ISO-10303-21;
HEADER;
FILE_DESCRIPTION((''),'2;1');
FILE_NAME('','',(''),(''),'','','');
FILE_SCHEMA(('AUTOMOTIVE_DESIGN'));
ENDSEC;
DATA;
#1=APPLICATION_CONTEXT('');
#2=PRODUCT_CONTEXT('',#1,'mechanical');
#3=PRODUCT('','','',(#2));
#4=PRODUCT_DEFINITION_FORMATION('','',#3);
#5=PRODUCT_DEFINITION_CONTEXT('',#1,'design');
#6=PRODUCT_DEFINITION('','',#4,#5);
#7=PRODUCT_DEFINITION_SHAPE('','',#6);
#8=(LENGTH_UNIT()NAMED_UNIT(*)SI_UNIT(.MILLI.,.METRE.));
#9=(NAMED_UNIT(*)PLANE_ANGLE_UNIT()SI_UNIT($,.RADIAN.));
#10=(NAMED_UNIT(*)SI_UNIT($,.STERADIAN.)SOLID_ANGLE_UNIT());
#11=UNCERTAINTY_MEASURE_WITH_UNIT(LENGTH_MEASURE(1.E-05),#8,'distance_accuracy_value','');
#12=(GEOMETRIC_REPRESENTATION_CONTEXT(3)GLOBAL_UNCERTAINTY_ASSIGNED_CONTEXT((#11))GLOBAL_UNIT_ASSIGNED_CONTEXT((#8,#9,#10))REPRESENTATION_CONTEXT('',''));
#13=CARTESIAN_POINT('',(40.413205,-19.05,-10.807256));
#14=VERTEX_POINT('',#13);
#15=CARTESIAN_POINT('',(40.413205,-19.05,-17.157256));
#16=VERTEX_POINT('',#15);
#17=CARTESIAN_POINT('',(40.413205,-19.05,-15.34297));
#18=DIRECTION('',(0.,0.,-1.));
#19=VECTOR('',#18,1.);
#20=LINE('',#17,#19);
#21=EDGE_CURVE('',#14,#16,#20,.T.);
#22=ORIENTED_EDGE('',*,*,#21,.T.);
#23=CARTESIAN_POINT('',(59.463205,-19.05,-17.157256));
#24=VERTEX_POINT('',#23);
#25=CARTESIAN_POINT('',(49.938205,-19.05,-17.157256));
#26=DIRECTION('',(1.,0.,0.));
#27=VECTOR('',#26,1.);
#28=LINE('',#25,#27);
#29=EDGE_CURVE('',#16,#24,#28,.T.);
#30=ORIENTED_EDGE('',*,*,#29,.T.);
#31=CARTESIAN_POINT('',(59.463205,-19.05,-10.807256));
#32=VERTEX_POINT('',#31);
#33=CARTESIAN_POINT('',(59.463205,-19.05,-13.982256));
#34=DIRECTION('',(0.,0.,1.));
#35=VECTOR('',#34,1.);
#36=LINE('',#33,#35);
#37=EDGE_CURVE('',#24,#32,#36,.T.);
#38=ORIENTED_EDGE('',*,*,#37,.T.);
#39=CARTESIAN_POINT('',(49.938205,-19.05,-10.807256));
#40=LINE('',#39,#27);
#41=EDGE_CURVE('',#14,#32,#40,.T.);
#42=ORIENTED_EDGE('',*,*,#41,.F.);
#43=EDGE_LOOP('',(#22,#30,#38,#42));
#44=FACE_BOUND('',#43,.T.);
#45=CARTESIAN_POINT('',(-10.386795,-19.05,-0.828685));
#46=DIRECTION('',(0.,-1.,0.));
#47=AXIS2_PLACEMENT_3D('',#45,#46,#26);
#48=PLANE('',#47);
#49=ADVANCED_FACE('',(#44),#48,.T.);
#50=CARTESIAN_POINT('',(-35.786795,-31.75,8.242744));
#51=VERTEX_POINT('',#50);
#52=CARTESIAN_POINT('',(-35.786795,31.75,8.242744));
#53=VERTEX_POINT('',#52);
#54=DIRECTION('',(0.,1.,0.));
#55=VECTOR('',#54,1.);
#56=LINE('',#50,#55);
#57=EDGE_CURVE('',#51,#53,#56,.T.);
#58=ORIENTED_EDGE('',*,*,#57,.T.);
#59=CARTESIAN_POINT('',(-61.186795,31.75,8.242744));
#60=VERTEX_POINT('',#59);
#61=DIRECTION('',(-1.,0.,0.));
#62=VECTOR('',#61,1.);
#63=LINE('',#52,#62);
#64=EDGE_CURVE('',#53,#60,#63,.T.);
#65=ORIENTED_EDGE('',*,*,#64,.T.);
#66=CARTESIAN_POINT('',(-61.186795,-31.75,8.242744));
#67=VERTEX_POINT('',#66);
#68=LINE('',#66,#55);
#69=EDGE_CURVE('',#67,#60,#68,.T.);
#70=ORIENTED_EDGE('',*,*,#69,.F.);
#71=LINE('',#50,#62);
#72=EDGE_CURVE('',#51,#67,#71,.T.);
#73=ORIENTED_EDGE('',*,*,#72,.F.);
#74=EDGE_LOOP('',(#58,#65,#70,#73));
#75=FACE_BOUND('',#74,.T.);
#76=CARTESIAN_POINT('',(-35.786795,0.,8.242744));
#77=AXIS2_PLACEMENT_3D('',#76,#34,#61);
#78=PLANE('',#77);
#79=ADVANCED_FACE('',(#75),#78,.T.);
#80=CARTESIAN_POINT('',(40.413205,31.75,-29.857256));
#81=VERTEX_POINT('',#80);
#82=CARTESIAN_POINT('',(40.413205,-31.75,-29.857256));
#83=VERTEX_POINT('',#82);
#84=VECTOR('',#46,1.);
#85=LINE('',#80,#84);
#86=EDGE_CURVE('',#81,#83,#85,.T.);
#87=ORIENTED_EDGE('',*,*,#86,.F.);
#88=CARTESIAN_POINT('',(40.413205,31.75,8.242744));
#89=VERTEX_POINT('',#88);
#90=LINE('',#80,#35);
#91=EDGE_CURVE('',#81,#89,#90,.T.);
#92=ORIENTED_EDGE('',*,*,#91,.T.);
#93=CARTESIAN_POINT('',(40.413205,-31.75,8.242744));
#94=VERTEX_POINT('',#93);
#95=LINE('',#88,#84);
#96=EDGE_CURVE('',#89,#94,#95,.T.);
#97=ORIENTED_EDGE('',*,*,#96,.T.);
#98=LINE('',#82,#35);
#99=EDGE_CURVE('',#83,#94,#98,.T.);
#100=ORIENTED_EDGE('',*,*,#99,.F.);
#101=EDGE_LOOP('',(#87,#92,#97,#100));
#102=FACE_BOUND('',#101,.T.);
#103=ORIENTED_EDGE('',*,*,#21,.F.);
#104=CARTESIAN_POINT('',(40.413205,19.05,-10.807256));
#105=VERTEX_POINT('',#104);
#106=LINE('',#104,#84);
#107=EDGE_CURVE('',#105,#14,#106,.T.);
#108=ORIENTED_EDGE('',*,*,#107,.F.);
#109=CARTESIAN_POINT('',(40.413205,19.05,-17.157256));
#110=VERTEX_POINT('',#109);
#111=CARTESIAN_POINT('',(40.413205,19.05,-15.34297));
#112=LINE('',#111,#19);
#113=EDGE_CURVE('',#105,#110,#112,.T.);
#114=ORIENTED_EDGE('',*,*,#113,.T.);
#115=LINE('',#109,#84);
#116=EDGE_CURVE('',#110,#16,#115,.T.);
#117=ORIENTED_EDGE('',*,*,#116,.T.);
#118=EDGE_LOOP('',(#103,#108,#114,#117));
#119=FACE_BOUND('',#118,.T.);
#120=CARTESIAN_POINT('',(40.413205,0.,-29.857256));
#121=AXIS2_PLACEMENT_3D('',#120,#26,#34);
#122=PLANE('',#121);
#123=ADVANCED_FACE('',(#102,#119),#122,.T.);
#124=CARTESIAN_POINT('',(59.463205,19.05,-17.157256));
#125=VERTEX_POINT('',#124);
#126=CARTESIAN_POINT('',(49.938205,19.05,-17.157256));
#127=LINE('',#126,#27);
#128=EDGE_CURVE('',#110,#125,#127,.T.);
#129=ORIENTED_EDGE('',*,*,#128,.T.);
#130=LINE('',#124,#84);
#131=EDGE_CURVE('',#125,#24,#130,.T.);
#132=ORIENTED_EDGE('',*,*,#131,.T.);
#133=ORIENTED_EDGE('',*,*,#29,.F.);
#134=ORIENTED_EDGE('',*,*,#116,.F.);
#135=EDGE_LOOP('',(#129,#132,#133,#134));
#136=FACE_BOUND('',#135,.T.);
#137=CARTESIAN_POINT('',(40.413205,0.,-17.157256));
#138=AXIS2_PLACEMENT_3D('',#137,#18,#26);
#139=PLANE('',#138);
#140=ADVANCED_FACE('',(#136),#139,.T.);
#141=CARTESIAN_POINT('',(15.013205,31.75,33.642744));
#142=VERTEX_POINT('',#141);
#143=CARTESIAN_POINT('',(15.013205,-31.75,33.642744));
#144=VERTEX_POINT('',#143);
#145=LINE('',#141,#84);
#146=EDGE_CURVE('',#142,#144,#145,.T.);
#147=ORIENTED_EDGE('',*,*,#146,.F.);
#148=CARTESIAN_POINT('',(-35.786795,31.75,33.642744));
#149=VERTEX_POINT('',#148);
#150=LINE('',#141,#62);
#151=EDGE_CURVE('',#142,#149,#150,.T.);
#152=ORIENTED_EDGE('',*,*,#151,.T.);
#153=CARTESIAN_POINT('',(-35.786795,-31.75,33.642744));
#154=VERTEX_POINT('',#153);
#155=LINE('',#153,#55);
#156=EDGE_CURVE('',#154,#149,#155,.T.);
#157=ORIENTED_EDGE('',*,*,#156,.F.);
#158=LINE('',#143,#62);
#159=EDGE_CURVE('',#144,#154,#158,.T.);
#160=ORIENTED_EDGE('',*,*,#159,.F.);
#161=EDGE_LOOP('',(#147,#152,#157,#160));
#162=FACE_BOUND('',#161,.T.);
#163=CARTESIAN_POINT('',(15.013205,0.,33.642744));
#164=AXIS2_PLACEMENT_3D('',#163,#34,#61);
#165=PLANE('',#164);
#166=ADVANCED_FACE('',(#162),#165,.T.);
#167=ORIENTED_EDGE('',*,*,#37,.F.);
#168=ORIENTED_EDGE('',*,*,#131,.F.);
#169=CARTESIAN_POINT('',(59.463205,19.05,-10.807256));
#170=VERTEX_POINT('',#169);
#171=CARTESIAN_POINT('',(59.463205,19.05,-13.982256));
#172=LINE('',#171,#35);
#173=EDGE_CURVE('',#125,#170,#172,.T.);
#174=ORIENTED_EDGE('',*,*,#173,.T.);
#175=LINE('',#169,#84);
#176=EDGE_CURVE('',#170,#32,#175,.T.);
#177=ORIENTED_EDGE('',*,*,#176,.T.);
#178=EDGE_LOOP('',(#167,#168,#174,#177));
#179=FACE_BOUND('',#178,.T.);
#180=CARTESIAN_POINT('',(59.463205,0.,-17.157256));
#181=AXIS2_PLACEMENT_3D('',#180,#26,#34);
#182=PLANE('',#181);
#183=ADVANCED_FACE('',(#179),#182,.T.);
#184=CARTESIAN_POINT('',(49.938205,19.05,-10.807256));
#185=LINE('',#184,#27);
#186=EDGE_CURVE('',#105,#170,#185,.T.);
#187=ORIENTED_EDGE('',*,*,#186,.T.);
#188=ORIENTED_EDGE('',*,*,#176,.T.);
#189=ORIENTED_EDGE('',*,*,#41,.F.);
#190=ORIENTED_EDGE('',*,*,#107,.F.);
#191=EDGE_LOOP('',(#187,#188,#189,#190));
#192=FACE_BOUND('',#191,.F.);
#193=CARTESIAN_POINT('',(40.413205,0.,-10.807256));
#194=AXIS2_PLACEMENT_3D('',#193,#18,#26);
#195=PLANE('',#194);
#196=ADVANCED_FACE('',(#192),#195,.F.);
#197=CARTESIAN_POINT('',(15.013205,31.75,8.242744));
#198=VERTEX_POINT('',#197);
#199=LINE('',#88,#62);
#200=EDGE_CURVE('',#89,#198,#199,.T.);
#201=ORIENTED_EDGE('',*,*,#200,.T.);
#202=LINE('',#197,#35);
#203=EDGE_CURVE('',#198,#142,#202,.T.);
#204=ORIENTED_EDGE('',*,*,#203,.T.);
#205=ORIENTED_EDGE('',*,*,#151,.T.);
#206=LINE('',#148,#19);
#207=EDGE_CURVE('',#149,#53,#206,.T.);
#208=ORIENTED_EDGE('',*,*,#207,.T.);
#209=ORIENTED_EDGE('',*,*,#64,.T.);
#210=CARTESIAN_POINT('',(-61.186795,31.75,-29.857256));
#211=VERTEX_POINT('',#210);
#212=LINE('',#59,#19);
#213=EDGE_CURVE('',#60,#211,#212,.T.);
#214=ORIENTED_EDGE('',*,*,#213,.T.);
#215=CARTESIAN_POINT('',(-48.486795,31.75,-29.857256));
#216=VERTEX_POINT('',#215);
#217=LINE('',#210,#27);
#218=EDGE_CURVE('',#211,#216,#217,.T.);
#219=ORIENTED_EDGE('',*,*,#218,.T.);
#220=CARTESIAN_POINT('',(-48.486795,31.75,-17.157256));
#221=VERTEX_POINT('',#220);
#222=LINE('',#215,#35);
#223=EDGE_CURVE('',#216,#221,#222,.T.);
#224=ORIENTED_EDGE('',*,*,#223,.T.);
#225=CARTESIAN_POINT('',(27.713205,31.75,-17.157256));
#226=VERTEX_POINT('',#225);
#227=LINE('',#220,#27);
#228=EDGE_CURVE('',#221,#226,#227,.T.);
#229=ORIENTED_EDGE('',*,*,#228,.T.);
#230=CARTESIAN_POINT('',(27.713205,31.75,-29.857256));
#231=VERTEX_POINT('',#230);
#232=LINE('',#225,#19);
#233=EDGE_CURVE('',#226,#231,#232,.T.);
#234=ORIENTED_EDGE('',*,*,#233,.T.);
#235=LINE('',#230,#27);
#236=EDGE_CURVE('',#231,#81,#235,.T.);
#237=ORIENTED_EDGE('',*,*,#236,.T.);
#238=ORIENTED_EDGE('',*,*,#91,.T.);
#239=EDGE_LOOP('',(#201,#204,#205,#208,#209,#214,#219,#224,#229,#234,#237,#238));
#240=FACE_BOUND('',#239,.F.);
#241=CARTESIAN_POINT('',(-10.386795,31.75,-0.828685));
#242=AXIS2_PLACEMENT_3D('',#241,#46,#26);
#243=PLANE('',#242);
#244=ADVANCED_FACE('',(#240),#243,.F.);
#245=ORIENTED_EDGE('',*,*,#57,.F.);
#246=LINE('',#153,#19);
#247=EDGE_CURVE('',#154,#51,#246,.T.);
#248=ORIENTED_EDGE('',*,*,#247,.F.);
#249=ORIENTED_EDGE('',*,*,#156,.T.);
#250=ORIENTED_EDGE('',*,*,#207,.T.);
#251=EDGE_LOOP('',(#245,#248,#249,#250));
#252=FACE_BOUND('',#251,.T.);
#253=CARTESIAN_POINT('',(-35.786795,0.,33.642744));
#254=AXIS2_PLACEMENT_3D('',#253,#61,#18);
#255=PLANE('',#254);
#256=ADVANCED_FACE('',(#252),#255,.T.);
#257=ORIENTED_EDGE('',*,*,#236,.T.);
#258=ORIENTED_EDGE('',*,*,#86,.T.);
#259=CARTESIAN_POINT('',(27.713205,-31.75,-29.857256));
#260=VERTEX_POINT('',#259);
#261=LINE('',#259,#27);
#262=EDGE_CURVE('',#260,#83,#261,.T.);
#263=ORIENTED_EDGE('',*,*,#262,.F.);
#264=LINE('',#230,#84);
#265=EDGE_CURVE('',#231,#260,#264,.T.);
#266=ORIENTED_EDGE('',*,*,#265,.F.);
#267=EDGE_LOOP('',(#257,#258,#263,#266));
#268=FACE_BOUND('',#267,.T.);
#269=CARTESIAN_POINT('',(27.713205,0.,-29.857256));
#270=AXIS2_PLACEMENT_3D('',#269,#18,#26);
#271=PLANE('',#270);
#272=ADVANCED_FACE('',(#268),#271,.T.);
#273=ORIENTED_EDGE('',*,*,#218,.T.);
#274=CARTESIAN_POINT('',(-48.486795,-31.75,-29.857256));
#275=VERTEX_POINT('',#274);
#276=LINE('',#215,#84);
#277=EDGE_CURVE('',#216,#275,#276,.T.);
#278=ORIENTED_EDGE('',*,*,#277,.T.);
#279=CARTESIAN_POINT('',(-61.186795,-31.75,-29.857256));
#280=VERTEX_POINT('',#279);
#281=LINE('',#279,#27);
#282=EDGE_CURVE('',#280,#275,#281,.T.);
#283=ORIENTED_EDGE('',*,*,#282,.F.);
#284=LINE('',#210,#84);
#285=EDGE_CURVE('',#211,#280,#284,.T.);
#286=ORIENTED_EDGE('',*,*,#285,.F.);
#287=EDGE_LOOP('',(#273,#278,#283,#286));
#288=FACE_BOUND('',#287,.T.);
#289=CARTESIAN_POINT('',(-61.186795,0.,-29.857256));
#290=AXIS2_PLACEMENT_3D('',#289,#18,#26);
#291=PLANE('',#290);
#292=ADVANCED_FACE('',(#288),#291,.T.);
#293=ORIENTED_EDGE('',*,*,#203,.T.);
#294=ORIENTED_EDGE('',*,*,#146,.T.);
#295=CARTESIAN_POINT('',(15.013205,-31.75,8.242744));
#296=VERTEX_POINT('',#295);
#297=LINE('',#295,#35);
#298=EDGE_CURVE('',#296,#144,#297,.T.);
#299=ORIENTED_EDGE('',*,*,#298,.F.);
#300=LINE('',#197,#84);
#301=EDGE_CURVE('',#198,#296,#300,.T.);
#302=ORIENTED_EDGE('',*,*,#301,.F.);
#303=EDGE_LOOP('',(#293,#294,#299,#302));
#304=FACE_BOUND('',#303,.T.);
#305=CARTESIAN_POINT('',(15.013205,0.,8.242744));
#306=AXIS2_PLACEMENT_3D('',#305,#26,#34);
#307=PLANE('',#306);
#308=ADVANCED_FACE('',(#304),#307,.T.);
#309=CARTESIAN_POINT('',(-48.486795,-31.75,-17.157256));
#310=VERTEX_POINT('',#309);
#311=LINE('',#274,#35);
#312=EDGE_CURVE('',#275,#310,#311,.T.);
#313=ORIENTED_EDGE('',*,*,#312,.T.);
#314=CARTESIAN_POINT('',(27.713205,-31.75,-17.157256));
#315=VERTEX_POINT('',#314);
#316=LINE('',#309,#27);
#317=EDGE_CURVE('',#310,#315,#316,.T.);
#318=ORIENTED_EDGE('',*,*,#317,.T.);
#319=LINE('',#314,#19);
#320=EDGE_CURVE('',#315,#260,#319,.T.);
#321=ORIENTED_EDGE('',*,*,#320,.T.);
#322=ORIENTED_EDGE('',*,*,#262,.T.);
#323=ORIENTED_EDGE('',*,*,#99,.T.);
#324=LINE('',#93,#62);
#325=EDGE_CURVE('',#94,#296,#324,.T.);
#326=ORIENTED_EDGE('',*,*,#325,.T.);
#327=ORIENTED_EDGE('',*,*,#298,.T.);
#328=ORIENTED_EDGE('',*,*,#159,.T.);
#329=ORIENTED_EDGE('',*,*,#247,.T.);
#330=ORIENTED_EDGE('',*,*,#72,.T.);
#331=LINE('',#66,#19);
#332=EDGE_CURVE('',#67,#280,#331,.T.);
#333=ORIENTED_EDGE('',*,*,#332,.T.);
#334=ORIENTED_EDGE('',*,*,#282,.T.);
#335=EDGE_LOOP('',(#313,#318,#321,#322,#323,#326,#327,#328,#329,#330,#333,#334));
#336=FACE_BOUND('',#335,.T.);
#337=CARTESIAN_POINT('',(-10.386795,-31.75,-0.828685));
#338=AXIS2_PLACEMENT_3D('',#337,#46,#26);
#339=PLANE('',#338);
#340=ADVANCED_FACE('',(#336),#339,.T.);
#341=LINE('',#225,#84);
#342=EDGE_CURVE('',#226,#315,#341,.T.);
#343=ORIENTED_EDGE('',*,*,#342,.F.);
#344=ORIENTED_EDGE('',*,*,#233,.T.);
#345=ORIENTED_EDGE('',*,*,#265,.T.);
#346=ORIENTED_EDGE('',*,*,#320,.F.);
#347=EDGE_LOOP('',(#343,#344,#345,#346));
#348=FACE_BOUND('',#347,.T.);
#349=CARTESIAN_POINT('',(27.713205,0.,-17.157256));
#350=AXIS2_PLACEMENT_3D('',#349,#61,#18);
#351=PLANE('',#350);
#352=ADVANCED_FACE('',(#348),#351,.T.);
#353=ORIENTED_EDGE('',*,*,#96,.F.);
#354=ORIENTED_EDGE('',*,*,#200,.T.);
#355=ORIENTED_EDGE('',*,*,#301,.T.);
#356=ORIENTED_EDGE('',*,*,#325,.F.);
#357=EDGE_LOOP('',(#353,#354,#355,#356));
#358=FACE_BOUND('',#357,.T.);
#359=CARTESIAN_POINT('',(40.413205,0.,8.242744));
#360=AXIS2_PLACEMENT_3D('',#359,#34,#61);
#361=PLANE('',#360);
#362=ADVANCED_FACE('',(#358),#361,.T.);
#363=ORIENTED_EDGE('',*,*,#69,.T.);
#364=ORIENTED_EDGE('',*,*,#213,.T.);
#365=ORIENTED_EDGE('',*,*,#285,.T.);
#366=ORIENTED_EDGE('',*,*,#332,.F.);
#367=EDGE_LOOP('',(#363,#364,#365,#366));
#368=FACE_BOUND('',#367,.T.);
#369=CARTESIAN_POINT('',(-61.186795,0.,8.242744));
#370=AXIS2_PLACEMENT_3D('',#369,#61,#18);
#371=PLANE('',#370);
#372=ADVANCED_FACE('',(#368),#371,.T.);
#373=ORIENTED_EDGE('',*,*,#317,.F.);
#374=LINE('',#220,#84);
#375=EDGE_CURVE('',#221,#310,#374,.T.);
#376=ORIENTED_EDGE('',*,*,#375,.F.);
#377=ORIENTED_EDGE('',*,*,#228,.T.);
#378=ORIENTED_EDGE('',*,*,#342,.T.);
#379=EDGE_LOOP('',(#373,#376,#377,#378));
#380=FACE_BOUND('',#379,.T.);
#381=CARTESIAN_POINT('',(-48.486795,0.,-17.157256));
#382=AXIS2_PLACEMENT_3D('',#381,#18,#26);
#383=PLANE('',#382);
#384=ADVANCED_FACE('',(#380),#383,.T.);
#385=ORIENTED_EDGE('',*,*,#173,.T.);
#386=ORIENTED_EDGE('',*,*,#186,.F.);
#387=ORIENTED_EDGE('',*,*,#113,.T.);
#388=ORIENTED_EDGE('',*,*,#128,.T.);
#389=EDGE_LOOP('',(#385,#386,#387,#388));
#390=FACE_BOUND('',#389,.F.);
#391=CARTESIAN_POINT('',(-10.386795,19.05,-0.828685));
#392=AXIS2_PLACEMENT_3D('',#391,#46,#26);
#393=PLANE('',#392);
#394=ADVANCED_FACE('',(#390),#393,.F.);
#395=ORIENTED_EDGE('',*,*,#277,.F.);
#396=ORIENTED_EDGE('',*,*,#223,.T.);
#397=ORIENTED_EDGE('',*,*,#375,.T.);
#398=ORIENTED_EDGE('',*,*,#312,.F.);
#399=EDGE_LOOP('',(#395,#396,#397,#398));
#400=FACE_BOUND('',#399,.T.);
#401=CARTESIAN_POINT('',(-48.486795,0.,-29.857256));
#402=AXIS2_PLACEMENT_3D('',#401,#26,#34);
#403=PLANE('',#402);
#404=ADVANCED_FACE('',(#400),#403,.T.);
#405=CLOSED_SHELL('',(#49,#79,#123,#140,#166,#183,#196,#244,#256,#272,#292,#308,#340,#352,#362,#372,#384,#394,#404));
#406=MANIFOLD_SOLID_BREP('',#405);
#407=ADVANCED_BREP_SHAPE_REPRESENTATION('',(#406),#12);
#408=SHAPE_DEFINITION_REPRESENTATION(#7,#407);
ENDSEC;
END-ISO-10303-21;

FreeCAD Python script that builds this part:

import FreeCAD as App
import Part
import Sketcher
Q = App.Units.Quantity


def add_polygon(sketch, points):
    """Adds a closed chain of lines whose ends are joined by coincident constraints."""
    first, n = sketch.GeometryCount, len(points)
    for a, b in zip(points, points[1:] + points[:1]):
        sketch.addGeometry(Part.LineSegment(App.Vector(*a, 0), App.Vector(*b, 0)), False)
    for i in range(n):
        sketch.addConstraint(Sketcher.Constraint("Coincident", first + i, 2, first + (i + 1) % n, 1))

doc = App.newDocument("Part")
body = doc.addObject("PartDesign::Body", "Body")

sketch1 = body.newObject("Sketcher::SketchObject", "Sketch")
sketch1.AttachmentSupport = (doc.getObject("XZ_Plane"), [""])
sketch1.MapMode = "FlatFace"
add_polygon(sketch1, [(-61, 8), (-61, -30), (-48, -30), (-48, -17), (28, -17), (28, -30), (40, -30), (40, 8), (15, 8), (15, 34), (-36, 34), (-36, 8)])
sketch1.addConstraint([
    Sketcher.Constraint("Vertical", 0),
    Sketcher.Constraint("Horizontal", 1),
    Sketcher.Constraint("Vertical", 2),
    Sketcher.Constraint("Horizontal", 3),
    Sketcher.Constraint("Vertical", 4),
    Sketcher.Constraint("Horizontal", 5),
    Sketcher.Constraint("Vertical", 6),
    Sketcher.Constraint("Horizontal", 7),
    Sketcher.Constraint("Vertical", 8),
    Sketcher.Constraint("Horizontal", 9),
    Sketcher.Constraint("Vertical", 10),
    Sketcher.Constraint("Horizontal", 11),
    Sketcher.Constraint("Horizontal", 1, 2, 4, 2),
    Sketcher.Constraint("Horizontal", 7, 2, 10, 2),
    Sketcher.Constraint("Equal", 1, 5),
    Sketcher.Constraint("Equal", 7, 11),
    Sketcher.Constraint("Equal", 5, 2),
    Sketcher.Constraint("Equal", 11, 8),
    Sketcher.Constraint("DistanceX", 3, 1, 3, 2, Q("3 in")),
    Sketcher.Constraint("DistanceX", 7, 2, 7, 1, Q("1 in")),
    Sketcher.Constraint("DistanceX", 9, 2, 9, 1, Q("2 in")),
    Sketcher.Constraint("DistanceY", 0, 2, 0, 1, Q("1.5 in")),
    Sketcher.Constraint("DistanceX", 0, 2, -1, 1, Q("61.186795 mm")),
    Sketcher.Constraint("DistanceY", 0, 2, -1, 1, Q("29.857256 mm")),
])
pad1 = body.newObject("PartDesign::Pad", "Pad")
pad1.Profile = sketch1
pad1.Length = Q("2.5 in")
pad1.Midplane = True

sketch2 = body.newObject("Sketcher::SketchObject", "Sketch001")
sketch2.AttachmentSupport = (doc.getObject("XZ_Plane"), [""])
sketch2.MapMode = "FlatFace"
add_polygon(sketch2, [(-61, 8), (-61, -30), (-48, -30), (-48, -17), (28, -17), (28, -30), (40, -30), (40, -17), (59, -17), (59, -11), (40, -11), (40, 8), (15, 8), (15, 34), (-36, 34), (-36, 8)])
sketch2.addConstraint([
    Sketcher.Constraint("Vertical", 0),
    Sketcher.Constraint("Horizontal", 1),
    Sketcher.Constraint("Vertical", 2),
    Sketcher.Constraint("Horizontal", 3),
    Sketcher.Constraint("Vertical", 4),
    Sketcher.Constraint("Horizontal", 5),
    Sketcher.Constraint("Vertical", 6),
    Sketcher.Constraint("Horizontal", 7),
    Sketcher.Constraint("Vertical", 8),
    Sketcher.Constraint("Horizontal", 9),
    Sketcher.Constraint("Vertical", 10),
    Sketcher.Constraint("Horizontal", 11),
    Sketcher.Constraint("Vertical", 12),
    Sketcher.Constraint("Horizontal", 13),
    Sketcher.Constraint("Vertical", 14),
    Sketcher.Constraint("Horizontal", 15),
    Sketcher.Constraint("Horizontal", 1, 2, 4, 2),
    Sketcher.Constraint("Horizontal", 3, 2, 6, 2),
    Sketcher.Constraint("Horizontal", 11, 2, 14, 2),
    Sketcher.Constraint("Vertical", 6, 2, 9, 2),
    Sketcher.Constraint("Equal", 1, 5),
    Sketcher.Constraint("Equal", 11, 15),
    Sketcher.Constraint("Equal", 5, 2),
    Sketcher.Constraint("Equal", 9, 10),
    Sketcher.Constraint("Equal", 15, 12),
    Sketcher.Constraint("DistanceX", 3, 1, 3, 2, Q("3 in")),
    Sketcher.Constraint("DistanceX", 11, 2, 11, 1, Q("1 in")),
    Sketcher.Constraint("DistanceX", 13, 2, 13, 1, Q("2 in")),
    Sketcher.Constraint("DistanceY", 0, 2, 0, 1, Q("1.5 in")),
    Sketcher.Constraint("DistanceX", 7, 1, 7, 2, Q("0.75 in")),
    Sketcher.Constraint("DistanceX", 0, 2, -1, 1, Q("61.186795 mm")),
    Sketcher.Constraint("DistanceY", 0, 2, -1, 1, Q("29.857256 mm")),
])
pad2 = body.newObject("PartDesign::Pad", "Pad001")
pad2.Profile = sketch2
pad2.Length = Q("1.5 in")
pad2.Midplane = True

doc.recompute()
